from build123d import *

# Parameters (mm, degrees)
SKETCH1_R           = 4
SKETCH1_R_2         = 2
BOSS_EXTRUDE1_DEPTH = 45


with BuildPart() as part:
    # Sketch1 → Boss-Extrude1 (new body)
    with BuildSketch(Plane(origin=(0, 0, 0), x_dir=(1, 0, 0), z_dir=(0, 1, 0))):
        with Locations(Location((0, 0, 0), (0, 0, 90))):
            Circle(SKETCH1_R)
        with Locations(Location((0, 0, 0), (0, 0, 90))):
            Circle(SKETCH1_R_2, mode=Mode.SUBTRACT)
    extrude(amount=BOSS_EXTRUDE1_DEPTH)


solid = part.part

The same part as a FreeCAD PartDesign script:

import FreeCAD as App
import Part
import Sketcher

doc = App.newDocument("Part")
body = doc.addObject("PartDesign::Body", "Body")

# Sketch on XZ plane
sketch1 = body.newObject("Sketcher::SketchObject", "Sketch")
sketch1.AttachmentSupport = (doc.getObject("XZ_Plane"), [""])
sketch1.MapMode = "FlatFace"
sketch1.addGeometry([
    Part.Circle(App.Vector(0, 0, 0), App.Vector(0, 0, 1), 4),
    Part.Circle(App.Vector(0, 0, 0), App.Vector(0, 0, 1), 2),
], False)
sketch1.addConstraint([
    Sketcher.Constraint("Coincident", 0, 3, -1, 1),
    Sketcher.Constraint("Coincident", 1, 3, -1, 1),
    Sketcher.Constraint("Diameter", 0, 8.0),
    Sketcher.Constraint("Diameter", 1, 4.0),
])
pad1 = body.newObject("PartDesign::Pad", "Pad")
pad1.Profile = sketch1
pad1.Length = 45
pad1.Reversed = True

doc.recompute()
